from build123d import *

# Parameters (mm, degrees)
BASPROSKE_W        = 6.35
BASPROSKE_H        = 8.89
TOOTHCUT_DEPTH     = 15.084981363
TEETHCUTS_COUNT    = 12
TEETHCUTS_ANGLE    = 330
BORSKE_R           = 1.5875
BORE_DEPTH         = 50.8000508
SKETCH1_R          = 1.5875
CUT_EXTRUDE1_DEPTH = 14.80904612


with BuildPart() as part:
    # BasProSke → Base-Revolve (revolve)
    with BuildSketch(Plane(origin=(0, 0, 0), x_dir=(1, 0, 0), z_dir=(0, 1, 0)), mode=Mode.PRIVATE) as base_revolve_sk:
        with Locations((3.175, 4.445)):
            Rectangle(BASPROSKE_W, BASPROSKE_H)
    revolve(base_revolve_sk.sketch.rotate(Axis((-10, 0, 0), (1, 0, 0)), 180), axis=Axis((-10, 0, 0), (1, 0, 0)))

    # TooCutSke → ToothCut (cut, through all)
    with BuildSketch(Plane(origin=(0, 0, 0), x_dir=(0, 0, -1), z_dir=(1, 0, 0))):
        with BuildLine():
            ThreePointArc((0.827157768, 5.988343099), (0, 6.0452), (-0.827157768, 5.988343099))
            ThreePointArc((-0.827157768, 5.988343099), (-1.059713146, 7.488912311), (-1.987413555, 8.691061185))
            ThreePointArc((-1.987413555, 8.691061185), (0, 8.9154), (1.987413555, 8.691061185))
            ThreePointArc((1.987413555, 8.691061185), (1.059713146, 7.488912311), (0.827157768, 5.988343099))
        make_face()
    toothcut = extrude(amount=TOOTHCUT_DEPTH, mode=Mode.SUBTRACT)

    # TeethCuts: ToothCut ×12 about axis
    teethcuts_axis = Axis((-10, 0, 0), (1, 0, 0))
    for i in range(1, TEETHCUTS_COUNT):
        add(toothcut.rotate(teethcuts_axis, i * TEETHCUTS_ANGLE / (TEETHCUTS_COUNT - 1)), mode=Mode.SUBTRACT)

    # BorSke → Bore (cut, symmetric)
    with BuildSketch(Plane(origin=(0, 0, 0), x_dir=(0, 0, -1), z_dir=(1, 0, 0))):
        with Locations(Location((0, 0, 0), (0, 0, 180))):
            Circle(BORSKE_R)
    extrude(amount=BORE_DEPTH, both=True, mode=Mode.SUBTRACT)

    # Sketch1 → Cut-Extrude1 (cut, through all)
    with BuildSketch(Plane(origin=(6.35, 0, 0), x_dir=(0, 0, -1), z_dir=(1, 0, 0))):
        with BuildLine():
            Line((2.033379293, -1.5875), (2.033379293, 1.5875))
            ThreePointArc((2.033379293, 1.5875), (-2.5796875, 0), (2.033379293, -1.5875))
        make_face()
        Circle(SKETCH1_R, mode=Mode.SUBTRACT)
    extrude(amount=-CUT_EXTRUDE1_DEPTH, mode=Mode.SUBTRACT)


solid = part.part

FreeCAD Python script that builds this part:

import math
import FreeCAD as App
import Part
import Sketcher
Q = App.Units.Quantity


def add_polygon(sketch, points):
    """Adds a closed chain of lines whose ends are joined by coincident constraints."""
    first, n = sketch.GeometryCount, len(points)
    for a, b in zip(points, points[1:] + points[:1]):
        sketch.addGeometry(Part.LineSegment(App.Vector(*a, 0), App.Vector(*b, 0)), False)
    for i in range(n):
        sketch.addConstraint(Sketcher.Constraint("Coincident", first + i, 2, first + (i + 1) % n, 1))

doc = App.newDocument("Part")
body = doc.addObject("PartDesign::Body", "Body")

# Sketch on XZ plane
sketch1 = body.newObject("Sketcher::SketchObject", "Sketch")
sketch1.AttachmentSupport = (doc.getObject("XZ_Plane"), [""])
sketch1.MapMode = "FlatFace"
add_polygon(sketch1, [(0, -8.89), (0, 0), (6.35, 0), (6.35, -8.89)])  # lines 0-3
sketch1.addConstraint(Sketcher.Constraint("Vertical", 0))
sketch1.addConstraint(Sketcher.Constraint("Horizontal", 1))
sketch1.addConstraint(Sketcher.Constraint("Vertical", 2))
sketch1.addConstraint(Sketcher.Constraint("Horizontal", 3))
sketch1.addConstraint(Sketcher.Constraint("Coincident", 0, 2, -1, 1))
sketch1.addConstraint(Sketcher.Constraint("DistanceX", 1, 1, 1, 2, Q("0.25 in")))
sketch1.addConstraint(Sketcher.Constraint("DistanceY", 0, 1, 0, 2, Q("0.35 in")))
revolution = body.newObject("PartDesign::Revolution", "Revolution")
revolution.Profile = sketch1
revolution.ReferenceAxis = (sketch1, ["H_Axis"])
revolution.Angle = 360

# Sketch on YZ plane
sketch2 = body.newObject("Sketcher::SketchObject", "Sketch001")
sketch2.AttachmentSupport = (doc.getObject("YZ_Plane"), [""])
sketch2.MapMode = "FlatFace"
sketch2.addGeometry(Part.ArcOfCircle(Part.Circle(App.Vector(0, 0, 0), App.Vector(0, 0, 1), 6.0452), math.radians(-7.864387), math.radians(7.864387)), False)
sketch2.addGeometry(Part.ArcOfCircle(Part.Circle(App.Vector(6.286541, -3.860536, 0), App.Vector(0, 0, 1), 3.048), math.radians(37.918605), math.radians(95.614454)), False)
sketch2.addGeometry(Part.ArcOfCircle(Part.Circle(App.Vector(0, 0, 0), App.Vector(0, 0, 1), 8.9154), math.radians(-12.880548), math.radians(12.880548)), False)
sketch2.addGeometry(Part.ArcOfCircle(Part.Circle(App.Vector(6.286541, 3.860536, 0), App.Vector(0, 0, 1), 3.048), math.radians(-95.614454), math.radians(-37.918605)), False)
sketch2.addConstraint(Sketcher.Constraint("Coincident", 0, 1, 1, 2))
sketch2.addConstraint(Sketcher.Constraint("Coincident", 1, 1, 2, 1))
sketch2.addConstraint(Sketcher.Constraint("Coincident", 2, 2, 3, 2))
sketch2.addConstraint(Sketcher.Constraint("Coincident", 3, 1, 0, 2))
sketch2.addConstraint(Sketcher.Constraint("Coincident", 0, 3, -1, 1))
sketch2.addConstraint(Sketcher.Constraint("Coincident", 2, 3, -1, 1))
sketch2.addConstraint(Sketcher.Constraint("Equal", 1, 3))
sketch2.addConstraint(Sketcher.Constraint("Symmetric", 1, 3, 3, 3, -1))
sketch2.addConstraint(Sketcher.Constraint("Radius", 1, Q("0.12 in")))
sketch2.addConstraint(Sketcher.Constraint("Radius", 0, Q("0.238 in")))
sketch2.addConstraint(Sketcher.Constraint("Radius", 2, Q("0.351 in")))
sketch2.addConstraint(Sketcher.Constraint("DistanceX", -1, 1, 1, 3, Q("6.286541 mm")))
sketch2.addConstraint(Sketcher.Constraint("DistanceX", -1, 1, 1, 1, Q("8.691061 mm")))
pocket1 = body.newObject("PartDesign::Pocket", "Pocket")
pocket1.Profile = sketch2
pocket1.Type = "ThroughAll"
pocket1.Reversed = True
doc.recompute()

polarpattern = body.newObject("PartDesign::PolarPattern", "PolarPattern")
polarpattern.Originals = [pocket1]
polarpattern.Axis = (doc.getObject("X_Axis"), [""])
polarpattern.Angle = 360
polarpattern.Occurrences = 12
body.Tip = polarpattern

# Sketch on YZ plane
sketch3 = body.newObject("Sketcher::SketchObject", "Sketch002")
sketch3.AttachmentSupport = (doc.getObject("YZ_Plane"), [""])
sketch3.MapMode = "FlatFace"
sketch3.addGeometry(Part.Circle(App.Vector(0, 0, 0), App.Vector(0, 0, 1), 1.5875), False)
sketch3.addConstraint(Sketcher.Constraint("Coincident", 0, 3, -1, 1))
sketch3.addConstraint(Sketcher.Constraint("Diameter", 0, Q("0.125 in")))
pocket2 = body.newObject("PartDesign::Pocket", "Pocket001")
pocket2.Profile = sketch3
pocket2.Length = 101.600102
pocket2.Midplane = True

# Sketch on YZ plane
sketch4 = body.newObject("Sketcher::SketchObject", "Sketch003")
sketch4.AttachmentSupport = (doc.getObject("YZ_Plane"), [""])
sketch4.MapMode = "FlatFace"
sketch4.AttachmentOffset = App.Placement(App.Vector(0, 0, 0.25 * 25.4), App.Rotation())
sketch4.addGeometry(Part.LineSegment(App.Vector(-1.5875, -2.033379, 0), App.Vector(1.5875, -2.033379, 0)), False)
sketch4.addGeometry(Part.ArcOfCircle(Part.Circle(App.Vector(0, 0, 0), App.Vector(0, 0, 1), 2.579687), math.radians(-52.020128), math.radians(232.020128)), False)
sketch4.addGeometry(Part.Circle(App.Vector(0, 0, 0), App.Vector(0, 0, 1), 1.5875), False)
sketch4.addConstraint(Sketcher.Constraint("Coincident", 0, 1, 1, 2))
sketch4.addConstraint(Sketcher.Constraint("Coincident", 1, 1, 0, 2))
sketch4.addConstraint(Sketcher.Constraint("Horizontal", 0))
sketch4.addConstraint(Sketcher.Constraint("Coincident", 1, 3, -1, 1))
sketch4.addConstraint(Sketcher.Constraint("Coincident", 2, 3, -1, 1))
sketch4.addConstraint(Sketcher.Constraint("Diameter", 2, Q("0.125 in")))
sketch4.addConstraint(Sketcher.Constraint("DistanceX", 0, 1, 0, 2, Q("0.125 in")))
sketch4.addConstraint(Sketcher.Constraint("Radius", 1, Q("2.579687 mm")))
pocket3 = body.newObject("PartDesign::Pocket", "Pocket002")
pocket3.Profile = sketch4
pocket3.Type = "ThroughAll"

doc.recompute()
